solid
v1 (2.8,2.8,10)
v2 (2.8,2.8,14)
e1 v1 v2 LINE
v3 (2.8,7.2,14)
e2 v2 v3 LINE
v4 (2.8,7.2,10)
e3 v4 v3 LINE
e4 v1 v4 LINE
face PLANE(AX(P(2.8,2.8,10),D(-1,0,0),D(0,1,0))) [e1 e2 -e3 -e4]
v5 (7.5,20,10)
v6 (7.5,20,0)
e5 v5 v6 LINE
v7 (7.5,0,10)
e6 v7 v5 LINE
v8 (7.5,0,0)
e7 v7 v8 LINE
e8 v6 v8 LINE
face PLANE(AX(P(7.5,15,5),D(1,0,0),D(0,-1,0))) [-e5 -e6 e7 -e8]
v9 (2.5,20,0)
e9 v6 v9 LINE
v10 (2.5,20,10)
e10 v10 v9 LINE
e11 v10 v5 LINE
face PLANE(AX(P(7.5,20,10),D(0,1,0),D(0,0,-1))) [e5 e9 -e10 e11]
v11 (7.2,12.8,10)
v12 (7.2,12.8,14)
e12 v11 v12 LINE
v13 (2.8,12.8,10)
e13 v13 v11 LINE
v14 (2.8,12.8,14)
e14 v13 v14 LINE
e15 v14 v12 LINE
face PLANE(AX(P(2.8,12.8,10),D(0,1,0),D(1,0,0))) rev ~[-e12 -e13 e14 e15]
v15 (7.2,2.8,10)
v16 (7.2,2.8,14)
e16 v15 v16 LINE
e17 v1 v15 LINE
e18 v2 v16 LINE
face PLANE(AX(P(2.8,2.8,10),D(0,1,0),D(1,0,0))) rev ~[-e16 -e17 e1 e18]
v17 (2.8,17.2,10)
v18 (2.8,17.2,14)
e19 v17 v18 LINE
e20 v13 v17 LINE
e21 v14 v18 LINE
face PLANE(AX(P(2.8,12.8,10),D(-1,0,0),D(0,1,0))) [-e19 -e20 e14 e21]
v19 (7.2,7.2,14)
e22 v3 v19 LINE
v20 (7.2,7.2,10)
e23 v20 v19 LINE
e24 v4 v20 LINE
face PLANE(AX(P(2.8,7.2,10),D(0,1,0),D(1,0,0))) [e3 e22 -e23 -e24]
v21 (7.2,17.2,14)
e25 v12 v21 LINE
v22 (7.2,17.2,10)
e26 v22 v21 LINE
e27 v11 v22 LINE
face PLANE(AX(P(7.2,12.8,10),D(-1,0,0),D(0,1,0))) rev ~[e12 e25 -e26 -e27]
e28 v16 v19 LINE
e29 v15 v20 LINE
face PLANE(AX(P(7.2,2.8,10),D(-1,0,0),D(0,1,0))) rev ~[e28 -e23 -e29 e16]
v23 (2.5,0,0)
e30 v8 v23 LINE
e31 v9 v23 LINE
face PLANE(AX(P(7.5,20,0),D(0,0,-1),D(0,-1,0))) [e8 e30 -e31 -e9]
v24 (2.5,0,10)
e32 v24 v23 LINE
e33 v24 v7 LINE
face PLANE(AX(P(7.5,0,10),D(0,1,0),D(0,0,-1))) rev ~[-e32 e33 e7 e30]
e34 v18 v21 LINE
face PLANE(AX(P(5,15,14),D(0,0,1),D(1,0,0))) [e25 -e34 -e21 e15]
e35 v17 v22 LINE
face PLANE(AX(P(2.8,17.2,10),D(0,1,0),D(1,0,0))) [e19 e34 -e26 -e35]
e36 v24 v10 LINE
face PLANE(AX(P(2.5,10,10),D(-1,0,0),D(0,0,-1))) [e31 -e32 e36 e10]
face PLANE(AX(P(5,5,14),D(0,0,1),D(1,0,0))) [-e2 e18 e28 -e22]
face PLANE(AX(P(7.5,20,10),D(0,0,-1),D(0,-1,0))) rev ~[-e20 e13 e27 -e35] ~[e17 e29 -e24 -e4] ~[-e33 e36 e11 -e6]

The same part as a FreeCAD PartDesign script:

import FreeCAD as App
import Part
import Sketcher
Q = App.Units.Quantity

doc = App.newDocument("Part")
body = doc.addObject("PartDesign::Body", "Body")

# Sketch on XY plane
sketch1 = doc.addObject("Sketcher::SketchObject", "Sketch")
body.addObject(sketch1)
sketch1.AttachmentSupport = (doc.XY_Plane, [""])
sketch1.MapMode = "FlatFace"
sketch1.addGeometry([
    Part.LineSegment(App.Vector(0, 10, 0), App.Vector(0, 0, 0)),
    Part.LineSegment(App.Vector(0, 0, 0), App.Vector(10, 0, 0)),
    Part.LineSegment(App.Vector(10, 0, 0), App.Vector(10, 10, 0)),
    Part.LineSegment(App.Vector(10, 10, 0), App.Vector(0, 10, 0)),
], False)
sketch1.addConstraint([
    Sketcher.Constraint("Coincident", 0, 2, 1, 1),
    Sketcher.Constraint("Coincident", 1, 2, 2, 1),
    Sketcher.Constraint("Coincident", 2, 2, 3, 1),
    Sketcher.Constraint("Coincident", 3, 2, 0, 1),
    Sketcher.Constraint("Vertical", 0),
    Sketcher.Constraint("Horizontal", 1),
    Sketcher.Constraint("Vertical", 2),
    Sketcher.Constraint("Horizontal", 3),
    Sketcher.Constraint("Coincident", 0, 2, -1, 1),
    Sketcher.Constraint("Equal", 3, 0),
    Sketcher.Constraint("DistanceX", 1, 1, 1, 2, Q("10 mm")),
])
pad1 = doc.addObject("PartDesign::Pad", "Pad")
body.addObject(pad1)
pad1.Profile = sketch1
pad1.Length = 10

# Sketch on XY plane
sketch2 = doc.addObject("Sketcher::SketchObject", "Sketch001")
body.addObject(sketch2)
sketch2.AttachmentSupport = (doc.XY_Plane, [""])
sketch2.MapMode = "FlatFace"
sketch2.AttachmentOffset = App.Placement(App.Vector(0, 0, 10), App.Rotation())
sketch2.addGeometry([
    Part.LineSegment(App.Vector(2.8, 7.2, 0), App.Vector(2.8, 2.8, 0)),
    Part.LineSegment(App.Vector(2.8, 2.8, 0), App.Vector(7.2, 2.8, 0)),
    Part.LineSegment(App.Vector(7.2, 2.8, 0), App.Vector(7.2, 7.2, 0)),
    Part.LineSegment(App.Vector(7.2, 7.2, 0), App.Vector(2.8, 7.2, 0)),
], False)
sketch2.addConstraint([
    Sketcher.Constraint("Coincident", 0, 2, 1, 1),
    Sketcher.Constraint("Coincident", 1, 2, 2, 1),
    Sketcher.Constraint("Coincident", 2, 2, 3, 1),
    Sketcher.Constraint("Coincident", 3, 2, 0, 1),
    Sketcher.Constraint("Vertical", 0),
    Sketcher.Constraint("Horizontal", 1),
    Sketcher.Constraint("Vertical", 2),
    Sketcher.Constraint("Horizontal", 3),
    Sketcher.Constraint("Equal", 3, 0),
    Sketcher.Constraint("DistanceX", 1, 1, 1, 2, Q("4.4 mm")),
    Sketcher.Constraint("DistanceX", -1, 1, 0, 2, Q("2.8 mm")),
    Sketcher.Constraint("DistanceY", -1, 1, 0, 2, Q("2.8 mm")),
])
pad2 = doc.addObject("PartDesign::Pad", "Pad001")
body.addObject(pad2)
pad2.Profile = sketch2
pad2.Length = 4

# Sketch on YZ plane
sketch3 = doc.addObject("Sketcher::SketchObject", "Sketch002")
body.addObject(sketch3)
sketch3.AttachmentSupport = (doc.YZ_Plane, [""])
sketch3.MapMode = "FlatFace"
sketch3.addGeometry([
    Part.LineSegment(App.Vector(0, 0, 0), App.Vector(0, 10, 0)),
    Part.LineSegment(App.Vector(0, 10, 0), App.Vector(10, 10, 0)),
    Part.LineSegment(App.Vector(10, 10, 0), App.Vector(10, 0, 0)),
    Part.LineSegment(App.Vector(10, 0, 0), App.Vector(0, 0, 0)),
], False)
sketch3.addConstraint([
    Sketcher.Constraint("Coincident", 0, 2, 1, 1),
    Sketcher.Constraint("Coincident", 1, 2, 2, 1),
    Sketcher.Constraint("Coincident", 2, 2, 3, 1),
    Sketcher.Constraint("Coincident", 3, 2, 0, 1),
    Sketcher.Constraint("Vertical", 0),
    Sketcher.Constraint("Horizontal", 1),
    Sketcher.Constraint("Vertical", 2),
    Sketcher.Constraint("Horizontal", 3),
    Sketcher.Constraint("Coincident", 3, 2, -1, 1),
    Sketcher.Constraint("Equal", 3, 0),
    Sketcher.Constraint("DistanceX", 1, 1, 1, 2, Q("10 mm")),
])
pocket1 = doc.addObject("PartDesign::Pocket", "Pocket")
body.addObject(pocket1)
pocket1.Profile = sketch3
pocket1.Length = 2.5
pocket1.Reversed = True

# Sketch on YZ plane
sketch4 = doc.addObject("Sketcher::SketchObject", "Sketch003")
body.addObject(sketch4)
sketch4.AttachmentSupport = (doc.YZ_Plane, [""])
sketch4.MapMode = "FlatFace"
sketch4.AttachmentOffset = App.Placement(App.Vector(0, 0, 10), App.Rotation())
sketch4.addGeometry([
    Part.LineSegment(App.Vector(10, 0, 0), App.Vector(10, 10, 0)),
    Part.LineSegment(App.Vector(10, 10, 0), App.Vector(0, 10, 0)),
    Part.LineSegment(App.Vector(0, 10, 0), App.Vector(0, 0, 0)),
    Part.LineSegment(App.Vector(0, 0, 0), App.Vector(10, 0, 0)),
], False)
sketch4.addConstraint([
    Sketcher.Constraint("Coincident", 0, 2, 1, 1),
    Sketcher.Constraint("Coincident", 1, 2, 2, 1),
    Sketcher.Constraint("Coincident", 2, 2, 3, 1),
    Sketcher.Constraint("Coincident", 3, 2, 0, 1),
    Sketcher.Constraint("Vertical", 0),
    Sketcher.Constraint("Horizontal", 1),
    Sketcher.Constraint("Vertical", 2),
    Sketcher.Constraint("Horizontal", 3),
    Sketcher.Constraint("Coincident", 2, 2, -1, 1),
    Sketcher.Constraint("Equal", 3, 0),
    Sketcher.Constraint("DistanceX", 1, 2, 1, 1, Q("10 mm")),
])
pocket2 = doc.addObject("PartDesign::Pocket", "Pocket001")
body.addObject(pocket2)
pocket2.Profile = sketch4
pocket2.Length = 2.5

# Sketch on XZ plane
sketch5 = doc.addObject("Sketcher::SketchObject", "Sketch004")
body.addObject(sketch5)
sketch5.AttachmentSupport = (doc.XZ_Plane, [""])
sketch5.MapMode = "FlatFace"
sketch5.AttachmentOffset = App.Placement(App.Vector(0, 0, -10), App.Rotation())
sketch5.addGeometry([
    Part.LineSegment(App.Vector(2.5, 0, 0), App.Vector(2.5, 10, 0)),
    Part.LineSegment(App.Vector(2.5, 10, 0), App.Vector(7.5, 10, 0)),
    Part.LineSegment(App.Vector(7.5, 10, 0), App.Vector(7.5, 0, 0)),
    Part.LineSegment(App.Vector(7.5, 0, 0), App.Vector(2.5, 0, 0)),
], False)
sketch5.addConstraint([
    Sketcher.Constraint("Coincident", 0, 2, 1, 1),
    Sketcher.Constraint("Coincident", 1, 2, 2, 1),
    Sketcher.Constraint("Coincident", 2, 2, 3, 1),
    Sketcher.Constraint("Coincident", 3, 2, 0, 1),
    Sketcher.Constraint("Vertical", 0),
    Sketcher.Constraint("Horizontal", 1),
    Sketcher.Constraint("Vertical", 2),
    Sketcher.Constraint("Horizontal", 3),
    Sketcher.Constraint("PointOnObject", 2, 2, -1),
    Sketcher.Constraint("DistanceX", 1, 1, 1, 2, Q("5 mm")),
    Sketcher.Constraint("DistanceY", 0, 1, 0, 2, Q("10 mm")),
    Sketcher.Constraint("DistanceX", -1, 1, 0, 2, Q("2.5 mm")),
])
pad3 = doc.addObject("PartDesign::Pad", "Pad002")
body.addObject(pad3)
pad3.Profile = sketch5
pad3.Length = 10
pad3.Reversed = True

# Sketch on XY plane
sketch6 = doc.addObject("Sketcher::SketchObject", "Sketch005")
body.addObject(sketch6)
sketch6.AttachmentSupport = (doc.XY_Plane, [""])
sketch6.MapMode = "FlatFace"
sketch6.AttachmentOffset = App.Placement(App.Vector(0, 0, 10), App.Rotation())
sketch6.addGeometry([
    Part.LineSegment(App.Vector(2.8, 17.2, 0), App.Vector(2.8, 12.8, 0)),
    Part.LineSegment(App.Vector(2.8, 12.8, 0), App.Vector(7.2, 12.8, 0)),
    Part.LineSegment(App.Vector(7.2, 12.8, 0), App.Vector(7.2, 17.2, 0)),
    Part.LineSegment(App.Vector(7.2, 17.2, 0), App.Vector(2.8, 17.2, 0)),
], False)
sketch6.addConstraint([
    Sketcher.Constraint("Coincident", 0, 2, 1, 1),
    Sketcher.Constraint("Coincident", 1, 2, 2, 1),
    Sketcher.Constraint("Coincident", 2, 2, 3, 1),
    Sketcher.Constraint("Coincident", 3, 2, 0, 1),
    Sketcher.Constraint("Vertical", 0),
    Sketcher.Constraint("Horizontal", 1),
    Sketcher.Constraint("Vertical", 2),
    Sketcher.Constraint("Horizontal", 3),
    Sketcher.Constraint("Equal", 3, 0),
    Sketcher.Constraint("DistanceX", 1, 1, 1, 2, Q("4.4 mm")),
    Sketcher.Constraint("DistanceX", -1, 1, 0, 2, Q("2.8 mm")),
    Sketcher.Constraint("DistanceY", -1, 1, 0, 2, Q("12.8 mm")),
])
pad4 = doc.addObject("PartDesign::Pad", "Pad003")
body.addObject(pad4)
pad4.Profile = sketch6
pad4.Length = 4

# Sketch on YZ plane
sketch7 = doc.addObject("Sketcher::SketchObject", "Sketch006")
body.addObject(sketch7)
sketch7.AttachmentSupport = (doc.YZ_Plane, [""])
sketch7.MapMode = "FlatFace"
sketch7.AttachmentOffset = App.Placement(App.Vector(0, 0, 7.5), App.Rotation())
sketch7.addGeometry([
    Part.LineSegment(App.Vector(10, 0, 0), App.Vector(10, 10, 0)),
    Part.LineSegment(App.Vector(10, 10, 0), App.Vector(0, 10, 0)),
    Part.LineSegment(App.Vector(0, 10, 0), App.Vector(0, 0, 0)),
    Part.LineSegment(App.Vector(0, 0, 0), App.Vector(10, 0, 0)),
], False)
sketch7.addConstraint([
    Sketcher.Constraint("Coincident", 0, 2, 1, 1),
    Sketcher.Constraint("Coincident", 1, 2, 2, 1),
    Sketcher.Constraint("Coincident", 2, 2, 3, 1),
    Sketcher.Constraint("Coincident", 3, 2, 0, 1),
    Sketcher.Constraint("Vertical", 0),
    Sketcher.Constraint("Horizontal", 1),
    Sketcher.Constraint("Vertical", 2),
    Sketcher.Constraint("Horizontal", 3),
    Sketcher.Constraint("Coincident", 2, 2, -1, 1),
    Sketcher.Constraint("Equal", 3, 0),
    Sketcher.Constraint("DistanceX", 1, 2, 1, 1, Q("10 mm")),
])
pad5 = doc.addObject("PartDesign::Pad", "Pad004")
body.addObject(pad5)
pad5.Profile = sketch7
pad5.Length = 10

# Sketch on YZ plane
sketch8 = doc.addObject("Sketcher::SketchObject", "Sketch007")
body.addObject(sketch8)
sketch8.AttachmentSupport = (doc.YZ_Plane, [""])
sketch8.MapMode = "FlatFace"
sketch8.AttachmentOffset = App.Placement(App.Vector(0, 0, 7.5), App.Rotation())
sketch8.addGeometry([
    Part.LineSegment(App.Vector(20, 0, 0), App.Vector(20, 10, 0)),
    Part.LineSegment(App.Vector(20, 10, 0), App.Vector(10, 10, 0)),
    Part.LineSegment(App.Vector(10, 10, 0), App.Vector(10, 0, 0)),
    Part.LineSegment(App.Vector(10, 0, 0), App.Vector(20, 0, 0)),
], False)
sketch8.addConstraint([
    Sketcher.Constraint("Coincident", 0, 2, 1, 1),
    Sketcher.Constraint("Coincident", 1, 2, 2, 1),
    Sketcher.Constraint("Coincident", 2, 2, 3, 1),
    Sketcher.Constraint("Coincident", 3, 2, 0, 1),
    Sketcher.Constraint("Vertical", 0),
    Sketcher.Constraint("Horizontal", 1),
    Sketcher.Constraint("Vertical", 2),
    Sketcher.Constraint("Horizontal", 3),
    Sketcher.Constraint("PointOnObject", 2, 2, -1),
    Sketcher.Constraint("Equal", 3, 0),
    Sketcher.Constraint("DistanceX", 1, 2, 1, 1, Q("10 mm")),
    Sketcher.Constraint("DistanceX", -1, 1, 0, 2, Q("20 mm")),
])
pad6 = doc.addObject("PartDesign::Pad", "Pad005")
body.addObject(pad6)
pad6.Profile = sketch8
pad6.Length = 10

# Sketch on YZ plane
sketch9 = doc.addObject("Sketcher::SketchObject", "Sketch008")
body.addObject(sketch9)
sketch9.AttachmentSupport = (doc.YZ_Plane, [""])
sketch9.MapMode = "FlatFace"
sketch9.AttachmentOffset = App.Placement(App.Vector(0, 0, 17.5), App.Rotation())
sketch9.addGeometry([
    Part.LineSegment(App.Vector(20, 0, 0), App.Vector(20, 10, 0)),
    Part.LineSegment(App.Vector(20, 10, 0), App.Vector(10, 10, 0)),
    Part.LineSegment(App.Vector(10, 10, 0), App.Vector(10, 0, 0)),
    Part.LineSegment(App.Vector(10, 0, 0), App.Vector(20, 0, 0)),
], False)
sketch9.addConstraint([
    Sketcher.Constraint("Coincident", 0, 2, 1, 1),
    Sketcher.Constraint("Coincident", 1, 2, 2, 1),
    Sketcher.Constraint("Coincident", 2, 2, 3, 1),
    Sketcher.Constraint("Coincident", 3, 2, 0, 1),
    Sketcher.Constraint("Vertical", 0),
    Sketcher.Constraint("Horizontal", 1),
    Sketcher.Constraint("Vertical", 2),
    Sketcher.Constraint("Horizontal", 3),
    Sketcher.Constraint("PointOnObject", 2, 2, -1),
    Sketcher.Constraint("Equal", 3, 0),
    Sketcher.Constraint("DistanceX", 1, 2, 1, 1, Q("10 mm")),
    Sketcher.Constraint("DistanceX", -1, 1, 0, 2, Q("20 mm")),
])
pocket3 = doc.addObject("PartDesign::Pocket", "Pocket002")
body.addObject(pocket3)
pocket3.Profile = sketch9
pocket3.Length = 10

# Sketch on YZ plane
sketch10 = doc.addObject("Sketcher::SketchObject", "Sketch009")
body.addObject(sketch10)
sketch10.AttachmentSupport = (doc.YZ_Plane, [""])
sketch10.MapMode = "FlatFace"
sketch10.AttachmentOffset = App.Placement(App.Vector(0, 0, 17.5), App.Rotation())
sketch10.addGeometry([
    Part.LineSegment(App.Vector(10, 0, 0), App.Vector(10, 10, 0)),
    Part.LineSegment(App.Vector(10, 10, 0), App.Vector(0, 10, 0)),
    Part.LineSegment(App.Vector(0, 10, 0), App.Vector(0, 0, 0)),
    Part.LineSegment(App.Vector(0, 0, 0), App.Vector(10, 0, 0)),
], False)
sketch10.addConstraint([
    Sketcher.Constraint("Coincident", 0, 2, 1, 1),
    Sketcher.Constraint("Coincident", 1, 2, 2, 1),
    Sketcher.Constraint("Coincident", 2, 2, 3, 1),
    Sketcher.Constraint("Coincident", 3, 2, 0, 1),
    Sketcher.Constraint("Vertical", 0),
    Sketcher.Constraint("Horizontal", 1),
    Sketcher.Constraint("Vertical", 2),
    Sketcher.Constraint("Horizontal", 3),
    Sketcher.Constraint("Coincident", 2, 2, -1, 1),
    Sketcher.Constraint("Equal", 3, 0),
    Sketcher.Constraint("DistanceX", 1, 2, 1, 1, Q("10 mm")),
])
pocket4 = doc.addObject("PartDesign::Pocket", "Pocket003")
body.addObject(pocket4)
pocket4.Profile = sketch10
pocket4.Length = 10

doc.recompute()
